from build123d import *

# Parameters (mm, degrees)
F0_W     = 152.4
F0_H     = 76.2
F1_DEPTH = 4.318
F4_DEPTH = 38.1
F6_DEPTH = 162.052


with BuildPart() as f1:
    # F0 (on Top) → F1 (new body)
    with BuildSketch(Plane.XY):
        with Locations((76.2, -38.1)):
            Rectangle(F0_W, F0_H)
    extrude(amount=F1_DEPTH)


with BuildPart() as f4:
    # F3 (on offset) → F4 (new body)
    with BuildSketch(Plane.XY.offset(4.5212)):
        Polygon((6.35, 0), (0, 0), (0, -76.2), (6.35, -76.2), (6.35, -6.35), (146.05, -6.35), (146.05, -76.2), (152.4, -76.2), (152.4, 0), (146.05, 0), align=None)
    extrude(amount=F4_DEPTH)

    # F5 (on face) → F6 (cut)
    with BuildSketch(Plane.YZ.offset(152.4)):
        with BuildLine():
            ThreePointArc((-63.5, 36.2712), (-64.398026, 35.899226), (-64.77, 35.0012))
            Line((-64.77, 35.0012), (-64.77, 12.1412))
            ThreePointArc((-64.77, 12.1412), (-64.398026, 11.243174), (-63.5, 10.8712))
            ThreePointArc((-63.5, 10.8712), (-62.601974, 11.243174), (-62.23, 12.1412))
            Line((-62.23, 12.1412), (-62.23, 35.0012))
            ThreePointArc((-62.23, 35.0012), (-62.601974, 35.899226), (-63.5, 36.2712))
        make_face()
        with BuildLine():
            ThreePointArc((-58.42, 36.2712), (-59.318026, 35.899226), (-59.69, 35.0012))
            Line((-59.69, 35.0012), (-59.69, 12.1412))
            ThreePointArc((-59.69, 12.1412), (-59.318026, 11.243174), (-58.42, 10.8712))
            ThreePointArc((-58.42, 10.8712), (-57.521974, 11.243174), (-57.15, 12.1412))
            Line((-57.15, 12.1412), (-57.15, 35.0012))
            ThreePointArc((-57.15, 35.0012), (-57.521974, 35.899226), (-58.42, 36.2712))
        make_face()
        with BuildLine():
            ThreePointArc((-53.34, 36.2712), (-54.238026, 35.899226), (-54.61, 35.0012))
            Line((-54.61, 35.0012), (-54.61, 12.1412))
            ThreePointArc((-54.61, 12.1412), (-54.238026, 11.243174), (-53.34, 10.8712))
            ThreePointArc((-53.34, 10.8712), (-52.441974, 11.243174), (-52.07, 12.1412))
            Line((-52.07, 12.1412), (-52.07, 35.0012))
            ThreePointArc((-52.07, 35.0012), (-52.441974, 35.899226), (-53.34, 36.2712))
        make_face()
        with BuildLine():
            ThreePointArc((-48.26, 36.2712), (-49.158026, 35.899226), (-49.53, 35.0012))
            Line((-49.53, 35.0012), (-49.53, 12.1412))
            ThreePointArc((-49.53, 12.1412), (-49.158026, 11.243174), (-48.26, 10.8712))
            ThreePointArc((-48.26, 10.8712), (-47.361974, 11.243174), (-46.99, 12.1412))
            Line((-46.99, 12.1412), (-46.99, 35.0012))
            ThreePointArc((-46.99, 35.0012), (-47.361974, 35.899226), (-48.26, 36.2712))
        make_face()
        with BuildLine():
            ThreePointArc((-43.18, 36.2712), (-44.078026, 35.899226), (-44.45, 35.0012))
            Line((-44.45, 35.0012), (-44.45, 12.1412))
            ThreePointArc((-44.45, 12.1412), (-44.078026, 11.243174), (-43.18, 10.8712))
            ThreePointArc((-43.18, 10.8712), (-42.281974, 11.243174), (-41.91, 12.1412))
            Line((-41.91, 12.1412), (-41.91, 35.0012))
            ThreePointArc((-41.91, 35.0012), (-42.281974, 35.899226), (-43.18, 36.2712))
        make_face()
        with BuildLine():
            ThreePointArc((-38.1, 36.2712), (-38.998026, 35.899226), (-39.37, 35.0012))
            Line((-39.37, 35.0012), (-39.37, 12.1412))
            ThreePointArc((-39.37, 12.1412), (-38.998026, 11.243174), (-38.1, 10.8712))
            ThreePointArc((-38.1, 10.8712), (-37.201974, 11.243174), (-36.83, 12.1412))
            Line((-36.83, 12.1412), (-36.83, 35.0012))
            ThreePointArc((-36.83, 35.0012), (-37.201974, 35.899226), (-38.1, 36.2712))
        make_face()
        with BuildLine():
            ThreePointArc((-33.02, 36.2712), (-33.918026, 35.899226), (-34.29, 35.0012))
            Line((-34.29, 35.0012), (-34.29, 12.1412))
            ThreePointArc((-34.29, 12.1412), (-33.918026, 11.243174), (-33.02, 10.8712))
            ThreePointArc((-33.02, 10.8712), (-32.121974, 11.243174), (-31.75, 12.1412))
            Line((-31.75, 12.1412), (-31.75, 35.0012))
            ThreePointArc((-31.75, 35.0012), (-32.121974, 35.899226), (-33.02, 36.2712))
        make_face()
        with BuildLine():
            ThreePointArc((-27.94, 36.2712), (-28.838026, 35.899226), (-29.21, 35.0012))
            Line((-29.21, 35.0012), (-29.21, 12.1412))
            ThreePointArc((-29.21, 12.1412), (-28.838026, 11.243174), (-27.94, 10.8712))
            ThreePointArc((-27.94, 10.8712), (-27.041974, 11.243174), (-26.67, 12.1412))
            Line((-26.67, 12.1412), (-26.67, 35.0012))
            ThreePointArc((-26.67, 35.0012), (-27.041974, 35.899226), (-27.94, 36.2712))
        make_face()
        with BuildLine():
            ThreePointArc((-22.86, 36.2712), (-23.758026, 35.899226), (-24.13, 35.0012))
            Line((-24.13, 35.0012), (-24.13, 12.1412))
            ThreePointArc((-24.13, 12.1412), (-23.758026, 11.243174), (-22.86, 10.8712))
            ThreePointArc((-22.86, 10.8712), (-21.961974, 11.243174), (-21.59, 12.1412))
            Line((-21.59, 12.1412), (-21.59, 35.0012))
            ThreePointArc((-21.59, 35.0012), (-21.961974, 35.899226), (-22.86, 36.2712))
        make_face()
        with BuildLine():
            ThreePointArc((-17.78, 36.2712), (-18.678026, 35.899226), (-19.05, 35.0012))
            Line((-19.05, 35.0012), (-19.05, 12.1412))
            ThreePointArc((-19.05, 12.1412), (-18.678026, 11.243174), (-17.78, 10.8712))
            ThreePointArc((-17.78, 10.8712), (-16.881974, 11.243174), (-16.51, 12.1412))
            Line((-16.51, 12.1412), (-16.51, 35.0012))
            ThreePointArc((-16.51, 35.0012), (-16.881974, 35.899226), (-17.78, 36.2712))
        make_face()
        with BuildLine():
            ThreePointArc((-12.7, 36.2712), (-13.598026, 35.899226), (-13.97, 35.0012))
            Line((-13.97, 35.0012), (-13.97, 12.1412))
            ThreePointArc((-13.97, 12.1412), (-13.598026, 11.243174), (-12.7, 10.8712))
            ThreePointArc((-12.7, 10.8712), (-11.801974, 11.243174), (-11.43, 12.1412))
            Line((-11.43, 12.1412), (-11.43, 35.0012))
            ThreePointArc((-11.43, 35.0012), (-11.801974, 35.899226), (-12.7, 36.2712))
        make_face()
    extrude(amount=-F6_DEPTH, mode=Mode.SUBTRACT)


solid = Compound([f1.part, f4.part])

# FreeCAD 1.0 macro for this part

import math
import FreeCAD as App
import Part
import Sketcher
from FreeCAD import Vector
Q = App.Units.Quantity

doc = App.newDocument("Part")
body = doc.addObject("PartDesign::Body", "Body")

sketch1 = doc.addObject("Sketcher::SketchObject", "Sketch")
body.addObject(sketch1)
sketch1.AttachmentSupport = (doc.XY_Plane, [""])
sketch1.MapMode = "FlatFace"
sketch1.addGeometry(Part.LineSegment(Vector(0, 0, 0), Vector(0, -76, 0)), False)
sketch1.addGeometry(Part.LineSegment(Vector(0, -76, 0), Vector(152, -76, 0)), False)
sketch1.addGeometry(Part.LineSegment(Vector(152, -76, 0), Vector(152, 0, 0)), False)
sketch1.addGeometry(Part.LineSegment(Vector(152, 0, 0), Vector(0, 0, 0)), False)
sketch1.addConstraint(Sketcher.Constraint("Coincident", 0, 2, 1, 1))
sketch1.addConstraint(Sketcher.Constraint("Coincident", 1, 2, 2, 1))
sketch1.addConstraint(Sketcher.Constraint("Coincident", 2, 2, 3, 1))
sketch1.addConstraint(Sketcher.Constraint("Coincident", 3, 2, 0, 1))
sketch1.addConstraint(Sketcher.Constraint("Vertical", 0))
sketch1.addConstraint(Sketcher.Constraint("Horizontal", 1))
sketch1.addConstraint(Sketcher.Constraint("Vertical", 2))
sketch1.addConstraint(Sketcher.Constraint("Horizontal", 3))
sketch1.addConstraint(Sketcher.Constraint("Coincident", 3, 2, -1, 1))
sketch1.addConstraint(Sketcher.Constraint("DistanceX", 1, 1, 1, 2, Q("6 in")))
sketch1.addConstraint(Sketcher.Constraint("DistanceY", 0, 2, 0, 1, Q("3 in")))
pad1 = doc.addObject("PartDesign::Pad", "Pad")
body.addObject(pad1)
pad1.Profile = sketch1
pad1.Length = Q("0.17 in")
body2 = doc.addObject("PartDesign::Body", "Body001")

sketch2 = doc.addObject("Sketcher::SketchObject", "Sketch001")
body2.addObject(sketch2)
sketch2.AttachmentSupport = (doc.getObject("XY_Plane001"), [""])
sketch2.MapMode = "FlatFace"
sketch2.AttachmentOffset = App.Placement(Vector(0, 0, 0.178 * 25.4), App.Rotation())
sketch2.addGeometry(Part.LineSegment(Vector(0, 0, 0), Vector(0, -76, 0)), False)
sketch2.addGeometry(Part.LineSegment(Vector(0, -76, 0), Vector(6, -76, 0)), False)
sketch2.addGeometry(Part.LineSegment(Vector(6, -76, 0), Vector(6, -6, 0)), False)
sketch2.addGeometry(Part.LineSegment(Vector(6, -6, 0), Vector(146, -6, 0)), False)
sketch2.addGeometry(Part.LineSegment(Vector(146, -6, 0), Vector(146, -76, 0)), False)
sketch2.addGeometry(Part.LineSegment(Vector(146, -76, 0), Vector(152, -76, 0)), False)
sketch2.addGeometry(Part.LineSegment(Vector(152, -76, 0), Vector(152, 0, 0)), False)
sketch2.addGeometry(Part.LineSegment(Vector(152, 0, 0), Vector(0, 0, 0)), False)
sketch2.addConstraint(Sketcher.Constraint("Coincident", 0, 2, 1, 1))
sketch2.addConstraint(Sketcher.Constraint("Coincident", 1, 2, 2, 1))
sketch2.addConstraint(Sketcher.Constraint("Coincident", 2, 2, 3, 1))
sketch2.addConstraint(Sketcher.Constraint("Coincident", 3, 2, 4, 1))
sketch2.addConstraint(Sketcher.Constraint("Coincident", 4, 2, 5, 1))
sketch2.addConstraint(Sketcher.Constraint("Coincident", 5, 2, 6, 1))
sketch2.addConstraint(Sketcher.Constraint("Coincident", 6, 2, 7, 1))
sketch2.addConstraint(Sketcher.Constraint("Coincident", 7, 2, 0, 1))
sketch2.addConstraint(Sketcher.Constraint("Vertical", 0))
sketch2.addConstraint(Sketcher.Constraint("Horizontal", 1))
sketch2.addConstraint(Sketcher.Constraint("Vertical", 2))
sketch2.addConstraint(Sketcher.Constraint("Horizontal", 3))
sketch2.addConstraint(Sketcher.Constraint("Vertical", 4))
sketch2.addConstraint(Sketcher.Constraint("Horizontal", 5))
sketch2.addConstraint(Sketcher.Constraint("Vertical", 6))
sketch2.addConstraint(Sketcher.Constraint("Horizontal", 7))
sketch2.addConstraint(Sketcher.Constraint("Coincident", 7, 2, -1, 1))
sketch2.addConstraint(Sketcher.Constraint("Horizontal", 1, 2, 4, 2))
sketch2.addConstraint(Sketcher.Constraint("Equal", 1, 5))
sketch2.addConstraint(Sketcher.Constraint("DistanceX", 7, 2, 7, 1, Q("6 in")))
sketch2.addConstraint(Sketcher.Constraint("DistanceY", 0, 2, 0, 1, Q("3 in")))
sketch2.addConstraint(Sketcher.Constraint("DistanceX", 3, 1, 3, 2, Q("5.5 in")))
sketch2.addConstraint(Sketcher.Constraint("DistanceY", 2, 1, 2, 2, Q("2.75 in")))
pad2 = doc.addObject("PartDesign::Pad", "Pad001")
body2.addObject(pad2)
pad2.Profile = sketch2
pad2.Length = Q("1.5 in")

sketch3 = doc.addObject("Sketcher::SketchObject", "Sketch002")
body2.addObject(sketch3)
sketch3.AttachmentSupport = (doc.getObject("YZ_Plane001"), [""])
sketch3.MapMode = "FlatFace"
sketch3.AttachmentOffset = App.Placement(Vector(0, 0, 6 * 25.4), App.Rotation())
sketch3.addGeometry(Part.ArcOfCircle(Part.Circle(Vector(-63.5, 35, 0), Vector(0, 0, 1), 1.3), math.radians(90), math.radians(180)), False)
sketch3.addGeometry(Part.LineSegment(Vector(-64.8, 35, 0), Vector(-64.8, 12.1, 0)), False)
sketch3.addGeometry(Part.ArcOfCircle(Part.Circle(Vector(-63.5, 12.1, 0), Vector(0, 0, 1), 1.3), math.radians(180), math.radians(270)), False)
sketch3.addGeometry(Part.ArcOfCircle(Part.Circle(Vector(-63.5, 12.1, 0), Vector(0, 0, 1), 1.3), math.radians(-90), math.radians(0)), False)
sketch3.addGeometry(Part.LineSegment(Vector(-62.2, 12.1, 0), Vector(-62.2, 35, 0)), False)
sketch3.addGeometry(Part.ArcOfCircle(Part.Circle(Vector(-63.5, 35, 0), Vector(0, 0, 1), 1.3), math.radians(0), math.radians(90)), False)
sketch3.addGeometry(Part.ArcOfCircle(Part.Circle(Vector(-58.4, 35, 0), Vector(0, 0, 1), 1.3), math.radians(90), math.radians(180)), False)
sketch3.addGeometry(Part.LineSegment(Vector(-59.7, 35, 0), Vector(-59.7, 12.1, 0)), False)
sketch3.addGeometry(Part.ArcOfCircle(Part.Circle(Vector(-58.4, 12.1, 0), Vector(0, 0, 1), 1.3), math.radians(180), math.radians(270)), False)
sketch3.addGeometry(Part.ArcOfCircle(Part.Circle(Vector(-58.4, 12.1, 0), Vector(0, 0, 1), 1.3), math.radians(-90), math.radians(0)), False)
sketch3.addGeometry(Part.LineSegment(Vector(-57.1, 12.1, 0), Vector(-57.1, 35, 0)), False)
sketch3.addGeometry(Part.ArcOfCircle(Part.Circle(Vector(-58.4, 35, 0), Vector(0, 0, 1), 1.3), math.radians(0), math.radians(90)), False)
sketch3.addGeometry(Part.ArcOfCircle(Part.Circle(Vector(-53.3, 35, 0), Vector(0, 0, 1), 1.3), math.radians(90), math.radians(180)), False)
sketch3.addGeometry(Part.LineSegment(Vector(-54.6, 35, 0), Vector(-54.6, 12.1, 0)), False)
sketch3.addGeometry(Part.ArcOfCircle(Part.Circle(Vector(-53.3, 12.1, 0), Vector(0, 0, 1), 1.3), math.radians(180), math.radians(270)), False)
sketch3.addGeometry(Part.ArcOfCircle(Part.Circle(Vector(-53.3, 12.1, 0), Vector(0, 0, 1), 1.3), math.radians(-90), math.radians(0)), False)
sketch3.addGeometry(Part.LineSegment(Vector(-52.1, 12.1, 0), Vector(-52.1, 35, 0)), False)
sketch3.addGeometry(Part.ArcOfCircle(Part.Circle(Vector(-53.3, 35, 0), Vector(0, 0, 1), 1.3), math.radians(0), math.radians(90)), False)
sketch3.addGeometry(Part.ArcOfCircle(Part.Circle(Vector(-48.3, 35, 0), Vector(0, 0, 1), 1.3), math.radians(90), math.radians(180)), False)
sketch3.addGeometry(Part.LineSegment(Vector(-49.5, 35, 0), Vector(-49.5, 12.1, 0)), False)
sketch3.addGeometry(Part.ArcOfCircle(Part.Circle(Vector(-48.3, 12.1, 0), Vector(0, 0, 1), 1.3), math.radians(180), math.radians(270)), False)
sketch3.addGeometry(Part.ArcOfCircle(Part.Circle(Vector(-48.3, 12.1, 0), Vector(0, 0, 1), 1.3), math.radians(-90), math.radians(0)), False)
sketch3.addGeometry(Part.LineSegment(Vector(-47, 12.1, 0), Vector(-47, 35, 0)), False)
sketch3.addGeometry(Part.ArcOfCircle(Part.Circle(Vector(-48.3, 35, 0), Vector(0, 0, 1), 1.3), math.radians(0), math.radians(90)), False)
sketch3.addGeometry(Part.ArcOfCircle(Part.Circle(Vector(-43.2, 35, 0), Vector(0, 0, 1), 1.3), math.radians(90), math.radians(180)), False)
sketch3.addGeometry(Part.LineSegment(Vector(-44.5, 35, 0), Vector(-44.5, 12.1, 0)), False)
sketch3.addGeometry(Part.ArcOfCircle(Part.Circle(Vector(-43.2, 12.1, 0), Vector(0, 0, 1), 1.3), math.radians(180), math.radians(270)), False)
sketch3.addGeometry(Part.ArcOfCircle(Part.Circle(Vector(-43.2, 12.1, 0), Vector(0, 0, 1), 1.3), math.radians(-90), math.radians(0)), False)
sketch3.addGeometry(Part.LineSegment(Vector(-41.9, 12.1, 0), Vector(-41.9, 35, 0)), False)
sketch3.addGeometry(Part.ArcOfCircle(Part.Circle(Vector(-43.2, 35, 0), Vector(0, 0, 1), 1.3), math.radians(0), math.radians(90)), False)
sketch3.addGeometry(Part.ArcOfCircle(Part.Circle(Vector(-38.1, 35, 0), Vector(0, 0, 1), 1.3), math.radians(90), math.radians(180)), False)
sketch3.addGeometry(Part.LineSegment(Vector(-39.4, 35, 0), Vector(-39.4, 12.1, 0)), False)
sketch3.addGeometry(Part.ArcOfCircle(Part.Circle(Vector(-38.1, 12.1, 0), Vector(0, 0, 1), 1.3), math.radians(180), math.radians(270)), False)
sketch3.addGeometry(Part.ArcOfCircle(Part.Circle(Vector(-38.1, 12.1, 0), Vector(0, 0, 1), 1.3), math.radians(-90), math.radians(0)), False)
sketch3.addGeometry(Part.LineSegment(Vector(-36.8, 12.1, 0), Vector(-36.8, 35, 0)), False)
sketch3.addGeometry(Part.ArcOfCircle(Part.Circle(Vector(-38.1, 35, 0), Vector(0, 0, 1), 1.3), math.radians(0), math.radians(90)), False)
sketch3.addGeometry(Part.ArcOfCircle(Part.Circle(Vector(-33, 35, 0), Vector(0, 0, 1), 1.3), math.radians(90), math.radians(180)), False)
sketch3.addGeometry(Part.LineSegment(Vector(-34.3, 35, 0), Vector(-34.3, 12.1, 0)), False)
sketch3.addGeometry(Part.ArcOfCircle(Part.Circle(Vector(-33, 12.1, 0), Vector(0, 0, 1), 1.3), math.radians(180), math.radians(270)), False)
sketch3.addGeometry(Part.ArcOfCircle(Part.Circle(Vector(-33, 12.1, 0), Vector(0, 0, 1), 1.3), math.radians(-90), math.radians(0)), False)
sketch3.addGeometry(Part.LineSegment(Vector(-31.8, 12.1, 0), Vector(-31.8, 35, 0)), False)
sketch3.addGeometry(Part.ArcOfCircle(Part.Circle(Vector(-33, 35, 0), Vector(0, 0, 1), 1.3), math.radians(0), math.radians(90)), False)
sketch3.addGeometry(Part.ArcOfCircle(Part.Circle(Vector(-27.9, 35, 0), Vector(0, 0, 1), 1.3), math.radians(90), math.radians(180)), False)
sketch3.addGeometry(Part.LineSegment(Vector(-29.2, 35, 0), Vector(-29.2, 12.1, 0)), False)
sketch3.addGeometry(Part.ArcOfCircle(Part.Circle(Vector(-27.9, 12.1, 0), Vector(0, 0, 1), 1.3), math.radians(180), math.radians(270)), False)
sketch3.addGeometry(Part.ArcOfCircle(Part.Circle(Vector(-27.9, 12.1, 0), Vector(0, 0, 1), 1.3), math.radians(-90), math.radians(0)), False)
sketch3.addGeometry(Part.LineSegment(Vector(-26.7, 12.1, 0), Vector(-26.7, 35, 0)), False)
sketch3.addGeometry(Part.ArcOfCircle(Part.Circle(Vector(-27.9, 35, 0), Vector(0, 0, 1), 1.3), math.radians(0), math.radians(90)), False)
sketch3.addGeometry(Part.ArcOfCircle(Part.Circle(Vector(-22.9, 35, 0), Vector(0, 0, 1), 1.3), math.radians(90), math.radians(180)), False)
sketch3.addGeometry(Part.LineSegment(Vector(-24.1, 35, 0), Vector(-24.1, 12.1, 0)), False)
sketch3.addGeometry(Part.ArcOfCircle(Part.Circle(Vector(-22.9, 12.1, 0), Vector(0, 0, 1), 1.3), math.radians(180), math.radians(270)), False)
sketch3.addGeometry(Part.ArcOfCircle(Part.Circle(Vector(-22.9, 12.1, 0), Vector(0, 0, 1), 1.3), math.radians(-90), math.radians(0)), False)
sketch3.addGeometry(Part.LineSegment(Vector(-21.6, 12.1, 0), Vector(-21.6, 35, 0)), False)
sketch3.addGeometry(Part.ArcOfCircle(Part.Circle(Vector(-22.9, 35, 0), Vector(0, 0, 1), 1.3), math.radians(0), math.radians(90)), False)
sketch3.addGeometry(Part.ArcOfCircle(Part.Circle(Vector(-17.8, 35, 0), Vector(0, 0, 1), 1.3), math.radians(90), math.radians(180)), False)
sketch3.addGeometry(Part.LineSegment(Vector(-19.1, 35, 0), Vector(-19.1, 12.1, 0)), False)
sketch3.addGeometry(Part.ArcOfCircle(Part.Circle(Vector(-17.8, 12.1, 0), Vector(0, 0, 1), 1.3), math.radians(180), math.radians(270)), False)
sketch3.addGeometry(Part.ArcOfCircle(Part.Circle(Vector(-17.8, 12.1, 0), Vector(0, 0, 1), 1.3), math.radians(-90), math.radians(0)), False)
sketch3.addGeometry(Part.LineSegment(Vector(-16.5, 12.1, 0), Vector(-16.5, 35, 0)), False)
sketch3.addGeometry(Part.ArcOfCircle(Part.Circle(Vector(-17.8, 35, 0), Vector(0, 0, 1), 1.3), math.radians(0), math.radians(90)), False)
sketch3.addGeometry(Part.ArcOfCircle(Part.Circle(Vector(-12.7, 35, 0), Vector(0, 0, 1), 1.3), math.radians(90), math.radians(180)), False)
sketch3.addGeometry(Part.LineSegment(Vector(-14, 35, 0), Vector(-14, 12.1, 0)), False)
sketch3.addGeometry(Part.ArcOfCircle(Part.Circle(Vector(-12.7, 12.1, 0), Vector(0, 0, 1), 1.3), math.radians(180), math.radians(270)), False)
sketch3.addGeometry(Part.ArcOfCircle(Part.Circle(Vector(-12.7, 12.1, 0), Vector(0, 0, 1), 1.3), math.radians(-90), math.radians(0)), False)
sketch3.addGeometry(Part.LineSegment(Vector(-11.4, 12.1, 0), Vector(-11.4, 35, 0)), False)
sketch3.addGeometry(Part.ArcOfCircle(Part.Circle(Vector(-12.7, 35, 0), Vector(0, 0, 1), 1.3), math.radians(0), math.radians(90)), False)
sketch3.addConstraint(Sketcher.Constraint("Tangent", 0, 2, 1, 1))
sketch3.addConstraint(Sketcher.Constraint("Tangent", 1, 2, 2, 1))
sketch3.addConstraint(Sketcher.Constraint("Coincident", 2, 2, 3, 1))
sketch3.addConstraint(Sketcher.Constraint("Tangent", 3, 2, 4, 1))
sketch3.addConstraint(Sketcher.Constraint("Tangent", 4, 2, 5, 1))
sketch3.addConstraint(Sketcher.Constraint("Coincident", 5, 2, 0, 1))
sketch3.addConstraint(Sketcher.Constraint("Tangent", 6, 2, 7, 1))
sketch3.addConstraint(Sketcher.Constraint("Tangent", 7, 2, 8, 1))
sketch3.addConstraint(Sketcher.Constraint("Coincident", 8, 2, 9, 1))
sketch3.addConstraint(Sketcher.Constraint("Tangent", 9, 2, 10, 1))
sketch3.addConstraint(Sketcher.Constraint("Tangent", 10, 2, 11, 1))
sketch3.addConstraint(Sketcher.Constraint("Coincident", 11, 2, 6, 1))
sketch3.addConstraint(Sketcher.Constraint("Tangent", 12, 2, 13, 1))
sketch3.addConstraint(Sketcher.Constraint("Tangent", 13, 2, 14, 1))
sketch3.addConstraint(Sketcher.Constraint("Coincident", 14, 2, 15, 1))
sketch3.addConstraint(Sketcher.Constraint("Tangent", 15, 2, 16, 1))
sketch3.addConstraint(Sketcher.Constraint("Tangent", 16, 2, 17, 1))
sketch3.addConstraint(Sketcher.Constraint("Coincident", 17, 2, 12, 1))
sketch3.addConstraint(Sketcher.Constraint("Tangent", 18, 2, 19, 1))
sketch3.addConstraint(Sketcher.Constraint("Tangent", 19, 2, 20, 1))
sketch3.addConstraint(Sketcher.Constraint("Coincident", 20, 2, 21, 1))
sketch3.addConstraint(Sketcher.Constraint("Tangent", 21, 2, 22, 1))
sketch3.addConstraint(Sketcher.Constraint("Tangent", 22, 2, 23, 1))
sketch3.addConstraint(Sketcher.Constraint("Coincident", 23, 2, 18, 1))
sketch3.addConstraint(Sketcher.Constraint("Tangent", 24, 2, 25, 1))
sketch3.addConstraint(Sketcher.Constraint("Tangent", 25, 2, 26, 1))
sketch3.addConstraint(Sketcher.Constraint("Coincident", 26, 2, 27, 1))
sketch3.addConstraint(Sketcher.Constraint("Tangent", 27, 2, 28, 1))
sketch3.addConstraint(Sketcher.Constraint("Tangent", 28, 2, 29, 1))
sketch3.addConstraint(Sketcher.Constraint("Coincident", 29, 2, 24, 1))
sketch3.addConstraint(Sketcher.Constraint("Tangent", 30, 2, 31, 1))
sketch3.addConstraint(Sketcher.Constraint("Tangent", 31, 2, 32, 1))
sketch3.addConstraint(Sketcher.Constraint("Coincident", 32, 2, 33, 1))
sketch3.addConstraint(Sketcher.Constraint("Tangent", 33, 2, 34, 1))
sketch3.addConstraint(Sketcher.Constraint("Tangent", 34, 2, 35, 1))
sketch3.addConstraint(Sketcher.Constraint("Coincident", 35, 2, 30, 1))
sketch3.addConstraint(Sketcher.Constraint("Tangent", 36, 2, 37, 1))
sketch3.addConstraint(Sketcher.Constraint("Tangent", 37, 2, 38, 1))
sketch3.addConstraint(Sketcher.Constraint("Coincident", 38, 2, 39, 1))
sketch3.addConstraint(Sketcher.Constraint("Tangent", 39, 2, 40, 1))
sketch3.addConstraint(Sketcher.Constraint("Tangent", 40, 2, 41, 1))
sketch3.addConstraint(Sketcher.Constraint("Coincident", 41, 2, 36, 1))
sketch3.addConstraint(Sketcher.Constraint("Tangent", 42, 2, 43, 1))
sketch3.addConstraint(Sketcher.Constraint("Tangent", 43, 2, 44, 1))
sketch3.addConstraint(Sketcher.Constraint("Coincident", 44, 2, 45, 1))
sketch3.addConstraint(Sketcher.Constraint("Tangent", 45, 2, 46, 1))
sketch3.addConstraint(Sketcher.Constraint("Tangent", 46, 2, 47, 1))
sketch3.addConstraint(Sketcher.Constraint("Coincident", 47, 2, 42, 1))
sketch3.addConstraint(Sketcher.Constraint("Tangent", 48, 2, 49, 1))
sketch3.addConstraint(Sketcher.Constraint("Tangent", 49, 2, 50, 1))
sketch3.addConstraint(Sketcher.Constraint("Coincident", 50, 2, 51, 1))
sketch3.addConstraint(Sketcher.Constraint("Tangent", 51, 2, 52, 1))
sketch3.addConstraint(Sketcher.Constraint("Tangent", 52, 2, 53, 1))
sketch3.addConstraint(Sketcher.Constraint("Coincident", 53, 2, 48, 1))
sketch3.addConstraint(Sketcher.Constraint("Tangent", 54, 2, 55, 1))
sketch3.addConstraint(Sketcher.Constraint("Tangent", 55, 2, 56, 1))
sketch3.addConstraint(Sketcher.Constraint("Coincident", 56, 2, 57, 1))
sketch3.addConstraint(Sketcher.Constraint("Tangent", 57, 2, 58, 1))
sketch3.addConstraint(Sketcher.Constraint("Tangent", 58, 2, 59, 1))
sketch3.addConstraint(Sketcher.Constraint("Coincident", 59, 2, 54, 1))
sketch3.addConstraint(Sketcher.Constraint("Tangent", 60, 2, 61, 1))
sketch3.addConstraint(Sketcher.Constraint("Tangent", 61, 2, 62, 1))
sketch3.addConstraint(Sketcher.Constraint("Coincident", 62, 2, 63, 1))
sketch3.addConstraint(Sketcher.Constraint("Tangent", 63, 2, 64, 1))
sketch3.addConstraint(Sketcher.Constraint("Tangent", 64, 2, 65, 1))
sketch3.addConstraint(Sketcher.Constraint("Coincident", 65, 2, 60, 1))
sketch3.addConstraint(Sketcher.Constraint("Vertical", 1))
sketch3.addConstraint(Sketcher.Constraint("Vertical", 4))
sketch3.addConstraint(Sketcher.Constraint("Vertical", 7))
sketch3.addConstraint(Sketcher.Constraint("Vertical", 10))
sketch3.addConstraint(Sketcher.Constraint("Vertical", 13))
sketch3.addConstraint(Sketcher.Constraint("Vertical", 16))
sketch3.addConstraint(Sketcher.Constraint("Vertical", 19))
sketch3.addConstraint(Sketcher.Constraint("Vertical", 22))
sketch3.addConstraint(Sketcher.Constraint("Vertical", 25))
sketch3.addConstraint(Sketcher.Constraint("Vertical", 28))
sketch3.addConstraint(Sketcher.Constraint("Vertical", 31))
sketch3.addConstraint(Sketcher.Constraint("Vertical", 34))
sketch3.addConstraint(Sketcher.Constraint("Vertical", 37))
sketch3.addConstraint(Sketcher.Constraint("Vertical", 40))
sketch3.addConstraint(Sketcher.Constraint("Vertical", 43))
sketch3.addConstraint(Sketcher.Constraint("Vertical", 46))
sketch3.addConstraint(Sketcher.Constraint("Vertical", 49))
sketch3.addConstraint(Sketcher.Constraint("Vertical", 52))
sketch3.addConstraint(Sketcher.Constraint("Vertical", 55))
sketch3.addConstraint(Sketcher.Constraint("Vertical", 58))
sketch3.addConstraint(Sketcher.Constraint("Vertical", 61))
sketch3.addConstraint(Sketcher.Constraint("Vertical", 64))
sketch3.addConstraint(Sketcher.Constraint("Coincident", 3, 3, 2, 3))
sketch3.addConstraint(Sketcher.Constraint("Coincident", 5, 3, 0, 3))
sketch3.addConstraint(Sketcher.Constraint("Coincident", 9, 3, 8, 3))
sketch3.addConstraint(Sketcher.Constraint("Coincident", 11, 3, 6, 3))
sketch3.addConstraint(Sketcher.Constraint("Coincident", 15, 3, 14, 3))
sketch3.addConstraint(Sketcher.Constraint("Coincident", 17, 3, 12, 3))
sketch3.addConstraint(Sketcher.Constraint("Coincident", 21, 3, 20, 3))
sketch3.addConstraint(Sketcher.Constraint("Coincident", 23, 3, 18, 3))
sketch3.addConstraint(Sketcher.Constraint("Coincident", 27, 3, 26, 3))
sketch3.addConstraint(Sketcher.Constraint("Coincident", 29, 3, 24, 3))
sketch3.addConstraint(Sketcher.Constraint("Coincident", 33, 3, 32, 3))
sketch3.addConstraint(Sketcher.Constraint("Coincident", 35, 3, 30, 3))
sketch3.addConstraint(Sketcher.Constraint("Coincident", 39, 3, 38, 3))
sketch3.addConstraint(Sketcher.Constraint("Coincident", 41, 3, 36, 3))
sketch3.addConstraint(Sketcher.Constraint("Coincident", 45, 3, 44, 3))
sketch3.addConstraint(Sketcher.Constraint("Coincident", 47, 3, 42, 3))
sketch3.addConstraint(Sketcher.Constraint("Coincident", 51, 3, 50, 3))
sketch3.addConstraint(Sketcher.Constraint("Coincident", 53, 3, 48, 3))
sketch3.addConstraint(Sketcher.Constraint("Coincident", 57, 3, 56, 3))
sketch3.addConstraint(Sketcher.Constraint("Coincident", 59, 3, 54, 3))
sketch3.addConstraint(Sketcher.Constraint("Coincident", 63, 3, 62, 3))
sketch3.addConstraint(Sketcher.Constraint("Coincident", 65, 3, 60, 3))
sketch3.addConstraint(Sketcher.Constraint("Equal", 5, 6))
sketch3.addConstraint(Sketcher.Constraint("Equal", 11, 12))
sketch3.addConstraint(Sketcher.Constraint("Equal", 17, 18))
sketch3.addConstraint(Sketcher.Constraint("Equal", 23, 24))
sketch3.addConstraint(Sketcher.Constraint("Equal", 29, 30))
sketch3.addConstraint(Sketcher.Constraint("Equal", 35, 36))
sketch3.addConstraint(Sketcher.Constraint("Equal", 41, 42))
sketch3.addConstraint(Sketcher.Constraint("Equal", 47, 48))
sketch3.addConstraint(Sketcher.Constraint("Equal", 53, 54))
sketch3.addConstraint(Sketcher.Constraint("Equal", 59, 60))
sketch3.addConstraint(Sketcher.Constraint("Horizontal", 5, 3, 6, 3))
sketch3.addConstraint(Sketcher.Constraint("Horizontal", 3, 3, 8, 3))
sketch3.addConstraint(Sketcher.Constraint("Horizontal", 11, 3, 12, 3))
sketch3.addConstraint(Sketcher.Constraint("Horizontal", 9, 3, 14, 3))
sketch3.addConstraint(Sketcher.Constraint("Horizontal", 17, 3, 18, 3))
sketch3.addConstraint(Sketcher.Constraint("Horizontal", 15, 3, 20, 3))
sketch3.addConstraint(Sketcher.Constraint("Horizontal", 23, 3, 24, 3))
sketch3.addConstraint(Sketcher.Constraint("Horizontal", 21, 3, 26, 3))
sketch3.addConstraint(Sketcher.Constraint("Horizontal", 29, 3, 30, 3))
sketch3.addConstraint(Sketcher.Constraint("Horizontal", 27, 3, 32, 3))
sketch3.addConstraint(Sketcher.Constraint("Horizontal", 35, 3, 36, 3))
sketch3.addConstraint(Sketcher.Constraint("Horizontal", 33, 3, 38, 3))
sketch3.addConstraint(Sketcher.Constraint("Horizontal", 41, 3, 42, 3))
sketch3.addConstraint(Sketcher.Constraint("Horizontal", 39, 3, 44, 3))
sketch3.addConstraint(Sketcher.Constraint("Horizontal", 47, 3, 48, 3))
sketch3.addConstraint(Sketcher.Constraint("Horizontal", 45, 3, 50, 3))
sketch3.addConstraint(Sketcher.Constraint("Horizontal", 53, 3, 54, 3))
sketch3.addConstraint(Sketcher.Constraint("Horizontal", 51, 3, 56, 3))
sketch3.addConstraint(Sketcher.Constraint("Horizontal", 59, 3, 60, 3))
sketch3.addConstraint(Sketcher.Constraint("Horizontal", 57, 3, 62, 3))
sketch3.addConstraint(Sketcher.Constraint("Vertical", 5, 3, 2, 2))
sketch3.addConstraint(Sketcher.Constraint("Vertical", 2, 2, 5, 2))
sketch3.addConstraint(Sketcher.Constraint("Vertical", 11, 3, 8, 2))
sketch3.addConstraint(Sketcher.Constraint("Vertical", 8, 2, 11, 2))
sketch3.addConstraint(Sketcher.Constraint("Vertical", 17, 3, 14, 2))
sketch3.addConstraint(Sketcher.Constraint("Vertical", 14, 2, 17, 2))
sketch3.addConstraint(Sketcher.Constraint("Vertical", 23, 3, 20, 2))
sketch3.addConstraint(Sketcher.Constraint("Vertical", 20, 2, 23, 2))
sketch3.addConstraint(Sketcher.Constraint("Vertical", 29, 3, 26, 2))
sketch3.addConstraint(Sketcher.Constraint("Vertical", 26, 2, 29, 2))
sketch3.addConstraint(Sketcher.Constraint("Vertical", 35, 3, 32, 2))
sketch3.addConstraint(Sketcher.Constraint("Vertical", 32, 2, 35, 2))
sketch3.addConstraint(Sketcher.Constraint("Vertical", 41, 3, 38, 2))
sketch3.addConstraint(Sketcher.Constraint("Vertical", 38, 2, 41, 2))
sketch3.addConstraint(Sketcher.Constraint("Vertical", 47, 3, 44, 2))
sketch3.addConstraint(Sketcher.Constraint("Vertical", 44, 2, 47, 2))
sketch3.addConstraint(Sketcher.Constraint("Vertical", 53, 3, 50, 2))
sketch3.addConstraint(Sketcher.Constraint("Vertical", 50, 2, 53, 2))
sketch3.addConstraint(Sketcher.Constraint("Vertical", 59, 3, 56, 2))
sketch3.addConstraint(Sketcher.Constraint("Vertical", 56, 2, 59, 2))
sketch3.addConstraint(Sketcher.Constraint("Vertical", 65, 3, 62, 2))
sketch3.addConstraint(Sketcher.Constraint("Vertical", 62, 2, 65, 2))
sketch3.addConstraint(Sketcher.Constraint("Radius", 0, Q("0.0499999 in")))
sketch3.addConstraint(Sketcher.Constraint("DistanceY", 1, 2, 1, 1, Q("0.9 in")))
sketch3.addConstraint(Sketcher.Constraint("DistanceX", 0, 3, -1, 1, Q("2.5000001 in")))
sketch3.addConstraint(Sketcher.Constraint("DistanceX", 6, 3, -1, 1, Q("2.3000001 in")))
sketch3.addConstraint(Sketcher.Constraint("DistanceX", 12, 3, -1, 1, Q("2.1000001 in")))
sketch3.addConstraint(Sketcher.Constraint("DistanceX", 18, 3, -1, 1, Q("1.9000001 in")))
sketch3.addConstraint(Sketcher.Constraint("DistanceX", 24, 3, -1, 1, Q("1.7000001 in")))
sketch3.addConstraint(Sketcher.Constraint("DistanceX", 30, 3, -1, 1, Q("1.5000001 in")))
sketch3.addConstraint(Sketcher.Constraint("DistanceX", 36, 3, -1, 1, Q("1.3000001 in")))
sketch3.addConstraint(Sketcher.Constraint("DistanceX", 42, 3, -1, 1, Q("1.1000001 in")))
sketch3.addConstraint(Sketcher.Constraint("DistanceX", 48, 3, -1, 1, Q("0.9000001 in")))
sketch3.addConstraint(Sketcher.Constraint("DistanceX", 54, 3, -1, 1, Q("0.7000001 in")))
sketch3.addConstraint(Sketcher.Constraint("DistanceX", 60, 3, -1, 1, Q("0.5000001 in")))
sketch3.addConstraint(Sketcher.Constraint("DistanceY", -1, 1, 0, 3, Q("1.3780001 in")))
pocket1 = doc.addObject("PartDesign::Pocket", "Pocket")
body2.addObject(pocket1)
pocket1.Profile = sketch3
pocket1.Length = Q("6.38 in")

doc.recompute()
